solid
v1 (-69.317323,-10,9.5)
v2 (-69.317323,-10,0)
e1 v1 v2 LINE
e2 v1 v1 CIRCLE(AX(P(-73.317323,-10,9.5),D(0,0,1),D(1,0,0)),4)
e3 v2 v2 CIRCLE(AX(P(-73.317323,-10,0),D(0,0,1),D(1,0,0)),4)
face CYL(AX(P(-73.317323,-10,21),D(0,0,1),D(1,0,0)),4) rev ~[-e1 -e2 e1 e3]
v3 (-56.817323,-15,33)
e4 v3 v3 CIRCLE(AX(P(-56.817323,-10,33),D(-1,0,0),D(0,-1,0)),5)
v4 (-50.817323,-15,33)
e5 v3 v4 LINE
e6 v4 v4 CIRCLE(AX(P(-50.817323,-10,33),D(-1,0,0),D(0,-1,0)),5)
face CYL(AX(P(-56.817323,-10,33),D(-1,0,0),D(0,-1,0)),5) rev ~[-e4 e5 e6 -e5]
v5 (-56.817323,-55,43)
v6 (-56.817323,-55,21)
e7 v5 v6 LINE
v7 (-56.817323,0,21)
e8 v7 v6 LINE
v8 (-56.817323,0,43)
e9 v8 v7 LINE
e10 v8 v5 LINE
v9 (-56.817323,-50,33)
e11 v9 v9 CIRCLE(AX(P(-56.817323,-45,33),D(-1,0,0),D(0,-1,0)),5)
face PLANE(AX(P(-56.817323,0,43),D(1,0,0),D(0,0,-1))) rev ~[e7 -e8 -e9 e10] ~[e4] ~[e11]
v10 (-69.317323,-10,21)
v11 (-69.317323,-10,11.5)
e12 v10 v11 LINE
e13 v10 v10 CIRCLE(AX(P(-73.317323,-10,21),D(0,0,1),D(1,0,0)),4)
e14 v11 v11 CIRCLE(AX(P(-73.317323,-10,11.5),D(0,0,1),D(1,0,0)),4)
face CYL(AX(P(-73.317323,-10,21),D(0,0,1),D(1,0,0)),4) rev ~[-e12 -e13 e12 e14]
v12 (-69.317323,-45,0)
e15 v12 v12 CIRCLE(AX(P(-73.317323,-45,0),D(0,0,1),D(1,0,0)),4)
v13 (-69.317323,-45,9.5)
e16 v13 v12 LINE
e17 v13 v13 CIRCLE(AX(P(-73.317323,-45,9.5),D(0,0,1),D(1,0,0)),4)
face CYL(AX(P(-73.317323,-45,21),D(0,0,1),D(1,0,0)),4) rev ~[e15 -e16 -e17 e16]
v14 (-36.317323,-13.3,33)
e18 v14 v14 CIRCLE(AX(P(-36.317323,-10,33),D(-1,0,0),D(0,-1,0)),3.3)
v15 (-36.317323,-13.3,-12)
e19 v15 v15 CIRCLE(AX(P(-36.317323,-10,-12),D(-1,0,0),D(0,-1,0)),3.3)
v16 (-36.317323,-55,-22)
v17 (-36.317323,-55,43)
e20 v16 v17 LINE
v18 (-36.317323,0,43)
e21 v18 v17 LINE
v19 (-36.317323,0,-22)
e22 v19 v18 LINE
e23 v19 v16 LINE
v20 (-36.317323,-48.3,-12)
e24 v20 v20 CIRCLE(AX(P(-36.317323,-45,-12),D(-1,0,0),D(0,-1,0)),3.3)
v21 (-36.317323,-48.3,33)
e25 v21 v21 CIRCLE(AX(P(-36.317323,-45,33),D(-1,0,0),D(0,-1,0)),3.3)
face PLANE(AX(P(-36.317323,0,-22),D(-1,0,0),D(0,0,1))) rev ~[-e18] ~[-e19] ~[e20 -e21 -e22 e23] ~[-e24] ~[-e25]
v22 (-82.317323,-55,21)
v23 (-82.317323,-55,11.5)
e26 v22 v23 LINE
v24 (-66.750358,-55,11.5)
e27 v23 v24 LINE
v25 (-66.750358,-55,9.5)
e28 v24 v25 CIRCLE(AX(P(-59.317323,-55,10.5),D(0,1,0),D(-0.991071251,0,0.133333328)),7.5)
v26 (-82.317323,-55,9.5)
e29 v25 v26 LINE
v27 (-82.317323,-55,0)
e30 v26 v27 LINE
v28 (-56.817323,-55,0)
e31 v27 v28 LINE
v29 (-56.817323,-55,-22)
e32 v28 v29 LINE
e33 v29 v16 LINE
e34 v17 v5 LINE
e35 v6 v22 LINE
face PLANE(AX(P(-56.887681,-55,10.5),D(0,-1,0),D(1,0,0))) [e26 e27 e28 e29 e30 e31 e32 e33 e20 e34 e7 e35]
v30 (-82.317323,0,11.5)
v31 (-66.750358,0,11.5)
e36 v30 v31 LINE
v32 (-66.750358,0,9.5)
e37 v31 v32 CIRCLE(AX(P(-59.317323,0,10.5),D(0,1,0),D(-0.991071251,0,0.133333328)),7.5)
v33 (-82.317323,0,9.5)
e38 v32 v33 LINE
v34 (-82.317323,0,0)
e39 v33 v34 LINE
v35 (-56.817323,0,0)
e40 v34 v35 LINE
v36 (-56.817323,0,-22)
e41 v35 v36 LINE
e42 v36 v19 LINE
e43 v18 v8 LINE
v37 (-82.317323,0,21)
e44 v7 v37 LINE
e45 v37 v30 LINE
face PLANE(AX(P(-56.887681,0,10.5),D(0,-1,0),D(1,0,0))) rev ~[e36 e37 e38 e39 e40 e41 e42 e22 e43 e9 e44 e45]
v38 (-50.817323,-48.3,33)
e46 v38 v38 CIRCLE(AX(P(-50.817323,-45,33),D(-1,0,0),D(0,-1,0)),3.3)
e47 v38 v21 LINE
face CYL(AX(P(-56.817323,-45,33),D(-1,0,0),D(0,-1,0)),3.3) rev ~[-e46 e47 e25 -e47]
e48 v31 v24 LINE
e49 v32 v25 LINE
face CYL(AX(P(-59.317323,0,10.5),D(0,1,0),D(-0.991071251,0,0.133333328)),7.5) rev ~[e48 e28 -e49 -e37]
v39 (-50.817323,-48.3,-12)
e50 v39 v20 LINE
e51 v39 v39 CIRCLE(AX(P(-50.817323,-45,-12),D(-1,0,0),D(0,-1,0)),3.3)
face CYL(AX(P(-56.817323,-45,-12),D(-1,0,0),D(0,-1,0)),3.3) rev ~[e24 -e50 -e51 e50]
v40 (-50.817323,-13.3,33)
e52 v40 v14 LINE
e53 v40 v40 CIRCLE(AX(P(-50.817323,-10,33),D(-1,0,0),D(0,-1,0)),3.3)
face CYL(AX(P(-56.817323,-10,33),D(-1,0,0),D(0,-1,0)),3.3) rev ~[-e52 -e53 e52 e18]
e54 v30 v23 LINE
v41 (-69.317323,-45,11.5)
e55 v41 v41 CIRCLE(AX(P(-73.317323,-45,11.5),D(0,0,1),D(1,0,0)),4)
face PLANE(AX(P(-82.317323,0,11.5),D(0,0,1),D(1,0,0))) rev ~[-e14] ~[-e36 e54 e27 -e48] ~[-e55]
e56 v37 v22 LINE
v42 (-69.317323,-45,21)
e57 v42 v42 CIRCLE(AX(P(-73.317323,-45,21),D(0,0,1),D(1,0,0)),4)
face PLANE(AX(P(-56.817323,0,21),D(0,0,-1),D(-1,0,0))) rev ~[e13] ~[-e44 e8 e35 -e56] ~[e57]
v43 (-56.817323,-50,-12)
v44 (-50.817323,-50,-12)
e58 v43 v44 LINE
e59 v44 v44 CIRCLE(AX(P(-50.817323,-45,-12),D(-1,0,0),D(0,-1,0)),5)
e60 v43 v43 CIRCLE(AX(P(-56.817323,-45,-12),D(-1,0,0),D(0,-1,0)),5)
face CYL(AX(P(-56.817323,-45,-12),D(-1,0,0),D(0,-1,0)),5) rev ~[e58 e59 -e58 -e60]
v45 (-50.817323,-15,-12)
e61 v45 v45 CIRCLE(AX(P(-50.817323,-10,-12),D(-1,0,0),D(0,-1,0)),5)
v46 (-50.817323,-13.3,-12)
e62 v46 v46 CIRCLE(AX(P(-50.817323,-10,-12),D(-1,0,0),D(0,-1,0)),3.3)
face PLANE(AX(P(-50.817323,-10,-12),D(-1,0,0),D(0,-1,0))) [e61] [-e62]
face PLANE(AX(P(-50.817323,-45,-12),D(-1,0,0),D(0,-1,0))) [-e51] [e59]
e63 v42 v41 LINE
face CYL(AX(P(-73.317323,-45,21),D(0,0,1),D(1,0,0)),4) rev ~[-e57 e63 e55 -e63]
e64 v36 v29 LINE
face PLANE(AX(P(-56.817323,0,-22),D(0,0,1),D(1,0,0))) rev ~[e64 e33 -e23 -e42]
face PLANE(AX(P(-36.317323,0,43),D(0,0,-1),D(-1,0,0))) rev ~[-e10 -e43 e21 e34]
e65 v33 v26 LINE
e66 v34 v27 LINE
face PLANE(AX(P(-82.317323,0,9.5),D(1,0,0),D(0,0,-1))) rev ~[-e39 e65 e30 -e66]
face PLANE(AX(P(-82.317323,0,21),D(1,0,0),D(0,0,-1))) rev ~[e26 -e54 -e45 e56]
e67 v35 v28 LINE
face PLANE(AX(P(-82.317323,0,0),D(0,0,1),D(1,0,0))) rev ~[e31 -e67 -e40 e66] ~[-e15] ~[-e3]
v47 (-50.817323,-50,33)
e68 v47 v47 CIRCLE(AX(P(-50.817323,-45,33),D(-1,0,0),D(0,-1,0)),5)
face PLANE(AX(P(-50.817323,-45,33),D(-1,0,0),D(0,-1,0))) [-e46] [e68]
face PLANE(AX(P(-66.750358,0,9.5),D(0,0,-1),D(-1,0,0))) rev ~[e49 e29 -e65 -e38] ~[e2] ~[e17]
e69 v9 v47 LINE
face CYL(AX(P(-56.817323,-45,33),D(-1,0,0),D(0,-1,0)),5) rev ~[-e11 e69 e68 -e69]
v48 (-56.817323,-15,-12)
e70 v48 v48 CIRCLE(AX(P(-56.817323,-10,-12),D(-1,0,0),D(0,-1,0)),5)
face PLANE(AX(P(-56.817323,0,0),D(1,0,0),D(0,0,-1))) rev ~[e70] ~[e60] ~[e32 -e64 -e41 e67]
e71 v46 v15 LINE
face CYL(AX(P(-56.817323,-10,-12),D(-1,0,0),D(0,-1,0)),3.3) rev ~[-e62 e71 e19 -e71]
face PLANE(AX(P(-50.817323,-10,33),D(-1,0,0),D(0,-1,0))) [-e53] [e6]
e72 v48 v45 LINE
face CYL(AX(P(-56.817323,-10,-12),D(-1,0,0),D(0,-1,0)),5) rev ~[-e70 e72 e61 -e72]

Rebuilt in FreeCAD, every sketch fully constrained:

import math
import FreeCAD as App
import Part
import Sketcher
from FreeCAD import Vector

doc = App.newDocument("Part")
body = doc.addObject("PartDesign::Body", "Body")

# Sketch on XZ plane
sketch1 = body.newObject("Sketcher::SketchObject", "Sketch")
sketch1.AttachmentSupport = (doc.getObject("XZ_Plane"), [""])
sketch1.MapMode = "FlatFace"
sketch1.addGeometry(Part.LineSegment(Vector(-36.3, 43, 0), Vector(-56.8, 43, 0)), False)
sketch1.addGeometry(Part.LineSegment(Vector(-56.8, 43, 0), Vector(-56.8, 21, 0)), False)
sketch1.addGeometry(Part.LineSegment(Vector(-56.8, 21, 0), Vector(-82.3, 21, 0)), False)
sketch1.addGeometry(Part.LineSegment(Vector(-82.3, 21, 0), Vector(-82.3, 11.5, 0)), False)
sketch1.addGeometry(Part.LineSegment(Vector(-82.3, 11.5, 0), Vector(-66.8, 11.5, 0)), False)
sketch1.addGeometry(Part.ArcOfCircle(Part.Circle(Vector(-59.3, 10.5, 0), Vector(0, 0, 1), 7.5), math.radians(-172), math.radians(172)), False)
sketch1.addGeometry(Part.LineSegment(Vector(-66.8, 9.5, 0), Vector(-82.3, 9.5, 0)), False)
sketch1.addGeometry(Part.LineSegment(Vector(-82.3, 9.5, 0), Vector(-82.3, 0, 0)), False)
sketch1.addGeometry(Part.LineSegment(Vector(-82.3, 0, 0), Vector(-56.8, 0, 0)), False)
sketch1.addGeometry(Part.LineSegment(Vector(-56.8, 0, 0), Vector(-56.8, -22, 0)), False)
sketch1.addGeometry(Part.LineSegment(Vector(-56.8, -22, 0), Vector(-36.3, -22, 0)), False)
sketch1.addGeometry(Part.LineSegment(Vector(-36.3, -22, 0), Vector(-36.3, 43, 0)), False)
sketch1.addConstraint(Sketcher.Constraint("Coincident", 0, 2, 1, 1))
sketch1.addConstraint(Sketcher.Constraint("Coincident", 1, 2, 2, 1))
sketch1.addConstraint(Sketcher.Constraint("Coincident", 2, 2, 3, 1))
sketch1.addConstraint(Sketcher.Constraint("Coincident", 3, 2, 4, 1))
sketch1.addConstraint(Sketcher.Constraint("Coincident", 4, 2, 5, 2))
sketch1.addConstraint(Sketcher.Constraint("Coincident", 5, 1, 6, 1))
sketch1.addConstraint(Sketcher.Constraint("Coincident", 6, 2, 7, 1))
sketch1.addConstraint(Sketcher.Constraint("Coincident", 7, 2, 8, 1))
sketch1.addConstraint(Sketcher.Constraint("Coincident", 8, 2, 9, 1))
sketch1.addConstraint(Sketcher.Constraint("Coincident", 9, 2, 10, 1))
sketch1.addConstraint(Sketcher.Constraint("Coincident", 10, 2, 11, 1))
sketch1.addConstraint(Sketcher.Constraint("Coincident", 11, 2, 0, 1))
sketch1.addConstraint(Sketcher.Constraint("Horizontal", 0))
sketch1.addConstraint(Sketcher.Constraint("Vertical", 1))
sketch1.addConstraint(Sketcher.Constraint("Horizontal", 2))
sketch1.addConstraint(Sketcher.Constraint("Vertical", 3))
sketch1.addConstraint(Sketcher.Constraint("Horizontal", 4))
sketch1.addConstraint(Sketcher.Constraint("Horizontal", 6))
sketch1.addConstraint(Sketcher.Constraint("Vertical", 7))
sketch1.addConstraint(Sketcher.Constraint("Horizontal", 8))
sketch1.addConstraint(Sketcher.Constraint("Vertical", 9))
sketch1.addConstraint(Sketcher.Constraint("Horizontal", 10))
sketch1.addConstraint(Sketcher.Constraint("Vertical", 11))
sketch1.addConstraint(Sketcher.Constraint("PointOnObject", 7, 2, -1))
sketch1.addConstraint(Sketcher.Constraint("Vertical", 4, 2, 5, 1))
sketch1.addConstraint(Sketcher.Constraint("Vertical", 3, 2, 6, 2))
sketch1.addConstraint(Sketcher.Constraint("Vertical", 1, 2, 8, 2))
sketch1.addConstraint(Sketcher.Constraint("Equal", 3, 7))
sketch1.addConstraint(Sketcher.Constraint("Equal", 1, 9))
sketch1.addConstraint(Sketcher.Constraint("Radius", 5, 7.5))
sketch1.addConstraint(Sketcher.Constraint("DistanceY", 1, 2, 1, 1, 22.0))
sketch1.addConstraint(Sketcher.Constraint("DistanceY", 11, 1, 11, 2, 65.0))
sketch1.addConstraint(Sketcher.Constraint("DistanceX", 0, 2, 0, 1, 20.5))
sketch1.addConstraint(Sketcher.Constraint("DistanceX", 2, 2, 2, 1, 25.5))
sketch1.addConstraint(Sketcher.Constraint("DistanceY", 3, 2, 3, 1, 9.5))
sketch1.addConstraint(Sketcher.Constraint("DistanceX", 2, 2, 5, 3, 23.0))
sketch1.addConstraint(Sketcher.Constraint("DistanceX", 4, 2, -1, 1, 66.750358))
pad1 = body.newObject("PartDesign::Pad", "Pad")
pad1.Profile = sketch1
pad1.Length = 55

# Sketch on XY plane
sketch2 = body.newObject("Sketcher::SketchObject", "Sketch001")
sketch2.AttachmentSupport = (doc.getObject("XY_Plane"), [""])
sketch2.MapMode = "FlatFace"
sketch2.AttachmentOffset = App.Placement(Vector(0, 0, 21), App.Rotation())
sketch2.addGeometry(Part.Circle(Vector(-73.3, -10, 0), Vector(0, 0, 1), 4), False)
sketch2.addGeometry(Part.Circle(Vector(-73.3, -45, 0), Vector(0, 0, 1), 4), False)
sketch2.addConstraint(Sketcher.Constraint("Equal", 0, 1))
sketch2.addConstraint(Sketcher.Constraint("Vertical", 0, 3, 1, 3))
sketch2.addConstraint(Sketcher.Constraint("Diameter", 0, 8.0))
sketch2.addConstraint(Sketcher.Constraint("DistanceY", 0, 3, -1, 1, 10.0))
sketch2.addConstraint(Sketcher.Constraint("DistanceY", 1, 3, -1, 1, 45.0))
sketch2.addConstraint(Sketcher.Constraint("DistanceX", 0, 3, -1, 1, 73.317323))
pocket1 = body.newObject("PartDesign::Pocket", "Pocket")
pocket1.Profile = sketch2
pocket1.Length = 25

# Sketch on YZ plane
sketch3 = body.newObject("Sketcher::SketchObject", "Sketch002")
sketch3.AttachmentSupport = (doc.getObject("YZ_Plane"), [""])
sketch3.MapMode = "FlatFace"
sketch3.AttachmentOffset = App.Placement(Vector(0, 0, -56.817323), App.Rotation())
sketch3.addGeometry(Part.Circle(Vector(-10, -12, 0), Vector(0, 0, 1), 5), False)
sketch3.addGeometry(Part.Circle(Vector(-45, -12, 0), Vector(0, 0, 1), 5), False)
sketch3.addGeometry(Part.Circle(Vector(-45, -12, 0), Vector(0, 0, 1), 3.3), False)
sketch3.addConstraint(Sketcher.Constraint("Coincident", 2, 3, 1, 3))
sketch3.addConstraint(Sketcher.Constraint("Equal", 0, 1))
sketch3.addConstraint(Sketcher.Constraint("Horizontal", 0, 3, 1, 3))
sketch3.addConstraint(Sketcher.Constraint("Diameter", 0, 10.0))
sketch3.addConstraint(Sketcher.Constraint("Diameter", 2, 6.6))
sketch3.addConstraint(Sketcher.Constraint("DistanceX", 0, 3, -1, 1, 10.0))
sketch3.addConstraint(Sketcher.Constraint("DistanceY", 0, 3, -1, 1, 12.0))
sketch3.addConstraint(Sketcher.Constraint("DistanceX", 1, 3, -1, 1, 45.0))
pocket2 = body.newObject("PartDesign::Pocket", "Pocket001")
pocket2.Profile = sketch3
pocket2.Length = 6
pocket2.Reversed = True

# Sketch on YZ plane
sketch4 = body.newObject("Sketcher::SketchObject", "Sketch003")
sketch4.AttachmentSupport = (doc.getObject("YZ_Plane"), [""])
sketch4.MapMode = "FlatFace"
sketch4.AttachmentOffset = App.Placement(Vector(0, 0, -56.817323), App.Rotation())
sketch4.addGeometry(Part.Circle(Vector(-10, -12, 0), Vector(0, 0, 1), 3.3), False)
sketch4.addGeometry(Part.Circle(Vector(-45, -12, 0), Vector(0, 0, 1), 3.3), False)
sketch4.addConstraint(Sketcher.Constraint("Equal", 0, 1))
sketch4.addConstraint(Sketcher.Constraint("Horizontal", 0, 3, 1, 3))
sketch4.addConstraint(Sketcher.Constraint("Diameter", 0, 6.6))
sketch4.addConstraint(Sketcher.Constraint("DistanceX", 0, 3, -1, 1, 10.0))
sketch4.addConstraint(Sketcher.Constraint("DistanceY", 0, 3, -1, 1, 12.0))
sketch4.addConstraint(Sketcher.Constraint("DistanceX", 1, 3, -1, 1, 45.0))
pocket3 = body.newObject("PartDesign::Pocket", "Pocket002")
pocket3.Profile = sketch4
pocket3.Length = 25
pocket3.Reversed = True

# Sketch on YZ plane
sketch5 = body.newObject("Sketcher::SketchObject", "Sketch004")
sketch5.AttachmentSupport = (doc.getObject("YZ_Plane"), [""])
sketch5.MapMode = "FlatFace"
sketch5.AttachmentOffset = App.Placement(Vector(0, 0, -56.817323), App.Rotation())
sketch5.addGeometry(Part.Circle(Vector(-10, 33, 0), Vector(0, 0, 1), 5), False)
sketch5.addGeometry(Part.Circle(Vector(-10, 33, 0), Vector(0, 0, 1), 3.3), False)
sketch5.addGeometry(Part.Circle(Vector(-45, 33, 0), Vector(0, 0, 1), 5), False)
sketch5.addGeometry(Part.Circle(Vector(-45, 33, 0), Vector(0, 0, 1), 3.3), False)
sketch5.addConstraint(Sketcher.Constraint("Coincident", 1, 3, 0, 3))
sketch5.addConstraint(Sketcher.Constraint("Coincident", 3, 3, 2, 3))
sketch5.addConstraint(Sketcher.Constraint("Equal", 0, 2))
sketch5.addConstraint(Sketcher.Constraint("Equal", 1, 3))
sketch5.addConstraint(Sketcher.Constraint("Horizontal", 1, 3, 2, 3))
sketch5.addConstraint(Sketcher.Constraint("Diameter", 0, 10.0))
sketch5.addConstraint(Sketcher.Constraint("Diameter", 1, 6.6))
sketch5.addConstraint(Sketcher.Constraint("DistanceX", 0, 3, -1, 1, 10.0))
sketch5.addConstraint(Sketcher.Constraint("DistanceY", -1, 1, 0, 3, 33.0))
sketch5.addConstraint(Sketcher.Constraint("DistanceX", 2, 3, -1, 1, 45.0))
pocket4 = body.newObject("PartDesign::Pocket", "Pocket003")
pocket4.Profile = sketch5
pocket4.Length = 6
pocket4.Reversed = True

# Sketch on YZ plane
sketch6 = body.newObject("Sketcher::SketchObject", "Sketch005")
sketch6.AttachmentSupport = (doc.getObject("YZ_Plane"), [""])
sketch6.MapMode = "FlatFace"
sketch6.AttachmentOffset = App.Placement(Vector(0, 0, -56.817323), App.Rotation())
sketch6.addGeometry(Part.Circle(Vector(-10, 33, 0), Vector(0, 0, 1), 3.3), False)
sketch6.addGeometry(Part.Circle(Vector(-45, 33, 0), Vector(0, 0, 1), 3.3), False)
sketch6.addConstraint(Sketcher.Constraint("Equal", 0, 1))
sketch6.addConstraint(Sketcher.Constraint("Horizontal", 0, 3, 1, 3))
sketch6.addConstraint(Sketcher.Constraint("Diameter", 0, 6.6))
sketch6.addConstraint(Sketcher.Constraint("DistanceX", 0, 3, -1, 1, 10.0))
sketch6.addConstraint(Sketcher.Constraint("DistanceY", -1, 1, 0, 3, 33.0))
sketch6.addConstraint(Sketcher.Constraint("DistanceX", 1, 3, -1, 1, 45.0))
pocket5 = body.newObject("PartDesign::Pocket", "Pocket004")
pocket5.Profile = sketch6
pocket5.Length = 25
pocket5.Reversed = True

doc.recompute()
